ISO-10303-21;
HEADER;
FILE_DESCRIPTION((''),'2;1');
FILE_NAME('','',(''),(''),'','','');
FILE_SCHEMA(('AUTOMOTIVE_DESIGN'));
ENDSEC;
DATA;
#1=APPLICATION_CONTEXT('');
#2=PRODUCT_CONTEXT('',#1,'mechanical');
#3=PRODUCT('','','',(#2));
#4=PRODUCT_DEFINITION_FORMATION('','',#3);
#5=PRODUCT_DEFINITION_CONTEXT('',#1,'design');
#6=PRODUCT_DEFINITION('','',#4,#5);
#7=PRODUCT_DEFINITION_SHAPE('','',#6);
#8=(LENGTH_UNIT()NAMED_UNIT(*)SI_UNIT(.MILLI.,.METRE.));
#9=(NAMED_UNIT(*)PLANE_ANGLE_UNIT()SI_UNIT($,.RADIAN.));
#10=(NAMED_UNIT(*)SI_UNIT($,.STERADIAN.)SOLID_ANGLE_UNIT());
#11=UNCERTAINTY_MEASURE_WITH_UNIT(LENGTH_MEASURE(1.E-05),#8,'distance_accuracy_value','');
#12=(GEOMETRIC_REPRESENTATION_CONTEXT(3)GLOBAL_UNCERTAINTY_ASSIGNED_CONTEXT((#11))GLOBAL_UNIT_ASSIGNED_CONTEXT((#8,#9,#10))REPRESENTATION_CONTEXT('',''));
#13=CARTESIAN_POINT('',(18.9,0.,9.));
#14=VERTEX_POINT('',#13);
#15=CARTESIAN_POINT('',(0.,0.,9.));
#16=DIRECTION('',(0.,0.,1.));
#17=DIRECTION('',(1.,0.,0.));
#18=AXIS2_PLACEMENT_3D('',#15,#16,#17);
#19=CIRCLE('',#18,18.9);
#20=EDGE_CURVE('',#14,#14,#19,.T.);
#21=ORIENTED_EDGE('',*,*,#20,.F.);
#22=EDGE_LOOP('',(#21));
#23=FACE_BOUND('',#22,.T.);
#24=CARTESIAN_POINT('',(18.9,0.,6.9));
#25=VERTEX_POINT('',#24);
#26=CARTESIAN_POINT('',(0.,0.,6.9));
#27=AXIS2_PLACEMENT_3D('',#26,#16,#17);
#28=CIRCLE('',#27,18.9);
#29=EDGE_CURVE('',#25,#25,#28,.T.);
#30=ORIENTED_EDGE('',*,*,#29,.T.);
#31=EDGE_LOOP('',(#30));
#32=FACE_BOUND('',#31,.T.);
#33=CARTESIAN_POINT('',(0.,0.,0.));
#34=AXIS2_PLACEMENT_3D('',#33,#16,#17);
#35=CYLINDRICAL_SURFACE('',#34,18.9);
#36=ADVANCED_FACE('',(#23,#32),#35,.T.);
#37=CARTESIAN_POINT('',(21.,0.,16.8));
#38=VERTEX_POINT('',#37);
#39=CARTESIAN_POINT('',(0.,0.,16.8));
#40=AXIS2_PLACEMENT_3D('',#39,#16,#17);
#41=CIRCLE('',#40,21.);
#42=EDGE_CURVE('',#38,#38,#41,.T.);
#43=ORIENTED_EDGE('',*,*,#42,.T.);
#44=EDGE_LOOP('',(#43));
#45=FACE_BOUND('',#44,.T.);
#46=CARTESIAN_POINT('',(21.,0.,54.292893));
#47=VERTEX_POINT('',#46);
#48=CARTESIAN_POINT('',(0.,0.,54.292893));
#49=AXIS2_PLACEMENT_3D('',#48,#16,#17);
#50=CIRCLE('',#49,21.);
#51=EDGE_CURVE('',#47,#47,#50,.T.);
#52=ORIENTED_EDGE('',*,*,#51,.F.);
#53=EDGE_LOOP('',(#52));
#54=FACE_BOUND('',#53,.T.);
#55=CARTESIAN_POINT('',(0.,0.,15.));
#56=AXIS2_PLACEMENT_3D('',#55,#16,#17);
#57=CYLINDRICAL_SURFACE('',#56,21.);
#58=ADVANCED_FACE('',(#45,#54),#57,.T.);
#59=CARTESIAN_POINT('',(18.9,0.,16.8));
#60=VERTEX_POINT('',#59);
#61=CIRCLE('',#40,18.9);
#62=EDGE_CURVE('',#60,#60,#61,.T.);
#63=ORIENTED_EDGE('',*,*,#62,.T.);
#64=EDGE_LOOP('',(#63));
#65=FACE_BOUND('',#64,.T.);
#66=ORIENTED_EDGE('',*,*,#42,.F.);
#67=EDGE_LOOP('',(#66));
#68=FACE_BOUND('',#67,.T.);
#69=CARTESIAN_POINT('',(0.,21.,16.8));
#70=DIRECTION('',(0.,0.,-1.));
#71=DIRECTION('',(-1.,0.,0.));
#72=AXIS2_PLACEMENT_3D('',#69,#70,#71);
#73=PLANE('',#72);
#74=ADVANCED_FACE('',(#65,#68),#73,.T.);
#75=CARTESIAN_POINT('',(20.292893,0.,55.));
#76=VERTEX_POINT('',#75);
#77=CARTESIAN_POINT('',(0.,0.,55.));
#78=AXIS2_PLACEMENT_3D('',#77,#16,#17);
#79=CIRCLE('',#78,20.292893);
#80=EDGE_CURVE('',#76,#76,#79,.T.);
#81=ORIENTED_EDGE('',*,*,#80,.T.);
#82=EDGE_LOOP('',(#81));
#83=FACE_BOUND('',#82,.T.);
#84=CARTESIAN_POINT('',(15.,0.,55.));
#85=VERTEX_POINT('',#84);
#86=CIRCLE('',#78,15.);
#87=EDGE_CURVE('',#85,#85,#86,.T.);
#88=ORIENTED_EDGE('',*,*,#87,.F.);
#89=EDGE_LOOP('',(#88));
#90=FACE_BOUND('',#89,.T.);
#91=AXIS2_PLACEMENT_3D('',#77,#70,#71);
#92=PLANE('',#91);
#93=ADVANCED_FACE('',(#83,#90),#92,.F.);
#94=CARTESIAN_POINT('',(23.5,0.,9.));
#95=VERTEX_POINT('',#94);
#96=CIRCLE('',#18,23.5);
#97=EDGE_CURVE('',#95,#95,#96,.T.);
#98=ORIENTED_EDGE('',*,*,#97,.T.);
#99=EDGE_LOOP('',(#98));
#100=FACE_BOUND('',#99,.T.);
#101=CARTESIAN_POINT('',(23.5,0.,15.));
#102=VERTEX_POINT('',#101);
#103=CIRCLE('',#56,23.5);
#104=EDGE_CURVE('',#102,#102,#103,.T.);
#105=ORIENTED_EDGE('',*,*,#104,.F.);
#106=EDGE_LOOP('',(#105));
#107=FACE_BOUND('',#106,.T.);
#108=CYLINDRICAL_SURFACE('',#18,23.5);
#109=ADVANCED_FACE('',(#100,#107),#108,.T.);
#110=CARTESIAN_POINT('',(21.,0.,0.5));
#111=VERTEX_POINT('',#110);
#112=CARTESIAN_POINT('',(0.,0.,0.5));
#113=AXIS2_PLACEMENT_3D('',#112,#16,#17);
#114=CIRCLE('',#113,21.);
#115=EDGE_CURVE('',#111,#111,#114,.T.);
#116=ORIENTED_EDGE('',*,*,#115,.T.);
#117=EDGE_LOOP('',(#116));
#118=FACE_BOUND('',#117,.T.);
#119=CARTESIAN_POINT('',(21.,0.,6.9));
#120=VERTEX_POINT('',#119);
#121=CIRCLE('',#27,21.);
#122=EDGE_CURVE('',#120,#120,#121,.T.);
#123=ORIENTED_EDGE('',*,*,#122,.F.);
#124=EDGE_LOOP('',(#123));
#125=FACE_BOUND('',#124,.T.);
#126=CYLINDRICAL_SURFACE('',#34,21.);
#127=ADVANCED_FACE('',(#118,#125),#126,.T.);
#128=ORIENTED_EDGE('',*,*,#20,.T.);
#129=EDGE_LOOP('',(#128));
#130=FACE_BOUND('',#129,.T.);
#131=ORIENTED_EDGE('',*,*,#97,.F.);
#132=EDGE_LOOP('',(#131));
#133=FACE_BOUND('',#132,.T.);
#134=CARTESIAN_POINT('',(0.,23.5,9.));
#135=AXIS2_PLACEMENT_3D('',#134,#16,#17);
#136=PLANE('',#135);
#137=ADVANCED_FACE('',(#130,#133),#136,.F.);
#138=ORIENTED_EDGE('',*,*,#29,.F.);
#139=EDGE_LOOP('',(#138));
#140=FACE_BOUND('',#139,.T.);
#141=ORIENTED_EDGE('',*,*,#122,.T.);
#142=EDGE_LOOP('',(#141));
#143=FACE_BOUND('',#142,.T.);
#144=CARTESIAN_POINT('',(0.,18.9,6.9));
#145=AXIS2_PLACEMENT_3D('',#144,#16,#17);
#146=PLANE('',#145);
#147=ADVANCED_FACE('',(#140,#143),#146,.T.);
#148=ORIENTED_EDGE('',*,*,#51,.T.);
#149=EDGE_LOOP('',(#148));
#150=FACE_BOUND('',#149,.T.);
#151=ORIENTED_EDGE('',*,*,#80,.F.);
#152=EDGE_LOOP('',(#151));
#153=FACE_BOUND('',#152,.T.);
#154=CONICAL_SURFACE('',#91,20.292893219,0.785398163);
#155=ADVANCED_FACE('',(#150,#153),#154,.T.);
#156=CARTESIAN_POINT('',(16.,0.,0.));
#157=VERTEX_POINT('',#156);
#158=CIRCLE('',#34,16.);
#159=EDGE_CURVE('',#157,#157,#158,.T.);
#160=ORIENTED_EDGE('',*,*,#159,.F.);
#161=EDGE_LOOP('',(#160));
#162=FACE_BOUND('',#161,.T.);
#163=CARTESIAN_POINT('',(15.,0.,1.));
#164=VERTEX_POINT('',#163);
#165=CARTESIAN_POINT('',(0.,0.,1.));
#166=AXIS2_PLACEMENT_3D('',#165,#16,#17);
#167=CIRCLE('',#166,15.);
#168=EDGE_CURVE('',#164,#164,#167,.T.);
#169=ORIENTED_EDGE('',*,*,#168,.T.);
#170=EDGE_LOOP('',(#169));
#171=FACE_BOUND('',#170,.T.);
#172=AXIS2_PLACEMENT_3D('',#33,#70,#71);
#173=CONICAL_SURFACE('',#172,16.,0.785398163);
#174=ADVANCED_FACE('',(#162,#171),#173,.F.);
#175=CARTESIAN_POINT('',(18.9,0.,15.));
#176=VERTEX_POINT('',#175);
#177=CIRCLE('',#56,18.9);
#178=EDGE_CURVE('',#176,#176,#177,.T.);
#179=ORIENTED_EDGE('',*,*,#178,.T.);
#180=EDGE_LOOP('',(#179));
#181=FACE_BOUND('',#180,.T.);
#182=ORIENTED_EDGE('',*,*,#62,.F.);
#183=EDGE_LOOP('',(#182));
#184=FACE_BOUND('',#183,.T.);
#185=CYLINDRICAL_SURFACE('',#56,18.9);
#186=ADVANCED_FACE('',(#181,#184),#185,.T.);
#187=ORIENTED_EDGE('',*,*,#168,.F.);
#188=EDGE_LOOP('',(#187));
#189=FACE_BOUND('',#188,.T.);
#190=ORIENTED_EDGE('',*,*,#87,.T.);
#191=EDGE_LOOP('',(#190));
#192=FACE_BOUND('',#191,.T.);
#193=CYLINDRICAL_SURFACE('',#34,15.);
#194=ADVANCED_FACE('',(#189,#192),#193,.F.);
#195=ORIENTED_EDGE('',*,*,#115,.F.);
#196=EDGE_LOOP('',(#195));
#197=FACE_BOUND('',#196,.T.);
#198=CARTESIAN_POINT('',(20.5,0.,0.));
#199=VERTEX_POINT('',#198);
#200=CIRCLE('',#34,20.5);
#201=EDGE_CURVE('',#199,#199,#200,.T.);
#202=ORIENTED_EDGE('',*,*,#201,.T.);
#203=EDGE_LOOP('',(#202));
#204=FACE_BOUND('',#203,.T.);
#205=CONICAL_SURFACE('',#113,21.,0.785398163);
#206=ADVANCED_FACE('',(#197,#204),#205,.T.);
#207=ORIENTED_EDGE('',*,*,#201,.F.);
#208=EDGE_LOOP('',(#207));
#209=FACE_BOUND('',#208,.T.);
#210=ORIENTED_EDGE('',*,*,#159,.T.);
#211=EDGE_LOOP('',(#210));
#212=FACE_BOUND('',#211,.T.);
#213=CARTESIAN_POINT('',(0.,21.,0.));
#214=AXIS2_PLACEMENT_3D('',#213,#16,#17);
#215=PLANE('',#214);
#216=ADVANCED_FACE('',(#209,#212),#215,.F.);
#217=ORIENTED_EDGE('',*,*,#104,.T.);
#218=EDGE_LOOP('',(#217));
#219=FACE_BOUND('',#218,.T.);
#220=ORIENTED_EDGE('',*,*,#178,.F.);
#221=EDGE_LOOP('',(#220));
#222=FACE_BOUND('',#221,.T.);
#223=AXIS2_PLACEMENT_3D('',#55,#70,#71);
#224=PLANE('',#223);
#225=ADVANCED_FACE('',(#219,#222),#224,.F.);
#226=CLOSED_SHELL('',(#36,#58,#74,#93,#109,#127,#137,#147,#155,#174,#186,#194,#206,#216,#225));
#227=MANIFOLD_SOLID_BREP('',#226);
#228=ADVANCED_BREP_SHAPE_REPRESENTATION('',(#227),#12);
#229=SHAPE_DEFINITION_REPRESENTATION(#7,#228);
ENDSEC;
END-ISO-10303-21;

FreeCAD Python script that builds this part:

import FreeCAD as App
import Part
import Sketcher
from FreeCAD import Vector
Q = App.Units.Quantity

doc = App.newDocument("Part")
body = doc.addObject("PartDesign::Body", "Body")

# Sketch on YZ plane
sketch1 = doc.addObject("Sketcher::SketchObject", "Sketch")
body.addObject(sketch1)
sketch1.AttachmentSupport = (doc.YZ_Plane, [""])
sketch1.MapMode = "FlatFace"
sketch1.addGeometry([
    Part.LineSegment(Vector(24, 15, 0), Vector(0, 15, 0)),
    Part.LineSegment(Vector(0, 15, 0), Vector(0, 9, 0)),
    Part.LineSegment(Vector(0, 9, 0), Vector(24, 9, 0)),
    Part.LineSegment(Vector(24, 9, 0), Vector(24, 15, 0)),
], False)
sketch1.addConstraint([
    Sketcher.Constraint("Coincident", 0, 2, 1, 1),
    Sketcher.Constraint("Coincident", 1, 2, 2, 1),
    Sketcher.Constraint("Coincident", 2, 2, 3, 1),
    Sketcher.Constraint("Coincident", 3, 2, 0, 1),
    Sketcher.Constraint("Horizontal", 0),
    Sketcher.Constraint("Vertical", 1),
    Sketcher.Constraint("Horizontal", 2),
    Sketcher.Constraint("Vertical", 3),
    Sketcher.Constraint("PointOnObject", 0, 2, -2),
    Sketcher.Constraint("DistanceY", 1, 2, 1, 1, Q("6 mm")),
    Sketcher.Constraint("DistanceX", 0, 2, 0, 1, Q("23.5 mm")),
    Sketcher.Constraint("DistanceY", -1, 1, 0, 2, Q("15 mm")),
])
revolution = doc.addObject("PartDesign::Revolution", "Revolution")
body.addObject(revolution)
revolution.Profile = sketch1
revolution.ReferenceAxis = (sketch1, ["V_Axis"])
revolution.Angle = 360

# Sketch on YZ plane
sketch2 = doc.addObject("Sketcher::SketchObject", "Sketch001")
body.addObject(sketch2)
sketch2.AttachmentSupport = (doc.YZ_Plane, [""])
sketch2.MapMode = "FlatFace"
sketch2.addGeometry([
    Part.LineSegment(Vector(21, 55, 0), Vector(0, 55, 0)),
    Part.LineSegment(Vector(0, 55, 0), Vector(0, 15, 0)),
    Part.LineSegment(Vector(0, 15, 0), Vector(21, 15, 0)),
    Part.LineSegment(Vector(21, 15, 0), Vector(21, 55, 0)),
], False)
sketch2.addConstraint([
    Sketcher.Constraint("Coincident", 0, 2, 1, 1),
    Sketcher.Constraint("Coincident", 1, 2, 2, 1),
    Sketcher.Constraint("Coincident", 2, 2, 3, 1),
    Sketcher.Constraint("Coincident", 3, 2, 0, 1),
    Sketcher.Constraint("Horizontal", 0),
    Sketcher.Constraint("Vertical", 1),
    Sketcher.Constraint("Horizontal", 2),
    Sketcher.Constraint("Vertical", 3),
    Sketcher.Constraint("PointOnObject", 0, 2, -2),
    Sketcher.Constraint("DistanceX", 0, 2, 0, 1, Q("21 mm")),
    Sketcher.Constraint("DistanceY", 1, 2, 1, 1, Q("40 mm")),
    Sketcher.Constraint("DistanceY", -1, 1, 0, 2, Q("55 mm")),
])
revolution2 = doc.addObject("PartDesign::Revolution", "Revolution001")
body.addObject(revolution2)
revolution2.Profile = sketch2
revolution2.ReferenceAxis = (sketch2, ["V_Axis"])
revolution2.Angle = 360

# Sketch on YZ plane
sketch3 = doc.addObject("Sketcher::SketchObject", "Sketch002")
body.addObject(sketch3)
sketch3.AttachmentSupport = (doc.YZ_Plane, [""])
sketch3.MapMode = "FlatFace"
sketch3.addGeometry([
    Part.LineSegment(Vector(20.3, 55, 0), Vector(21, 54.3, 0)),
    Part.LineSegment(Vector(21, 54.3, 0), Vector(21, 55, 0)),
    Part.LineSegment(Vector(21, 55, 0), Vector(20.3, 55, 0)),
], False)
sketch3.addConstraint([
    Sketcher.Constraint("Coincident", 0, 2, 1, 1),
    Sketcher.Constraint("Coincident", 1, 2, 2, 1),
    Sketcher.Constraint("Coincident", 2, 2, 0, 1),
    Sketcher.Constraint("Vertical", 1),
    Sketcher.Constraint("Horizontal", 2),
    Sketcher.Constraint("Equal", 2, 1),
    Sketcher.Constraint("Distance", 0, Q("1 mm")),
    Sketcher.Constraint("DistanceX", -1, 1, 0, 2, Q("21 mm")),
    Sketcher.Constraint("DistanceY", -1, 1, 1, 2, Q("55 mm")),
])
groove = doc.addObject("PartDesign::Groove", "Groove")
body.addObject(groove)
groove.Profile = sketch3
groove.ReferenceAxis = (sketch3, ["V_Axis"])
groove.Angle = 360

# Sketch on YZ plane
sketch4 = doc.addObject("Sketcher::SketchObject", "Sketch003")
body.addObject(sketch4)
sketch4.AttachmentSupport = (doc.YZ_Plane, [""])
sketch4.MapMode = "FlatFace"
sketch4.addGeometry([
    Part.LineSegment(Vector(21, 16.8, 0), Vector(18.9, 16.8, 0)),
    Part.LineSegment(Vector(18.9, 16.8, 0), Vector(18.9, 15, 0)),
    Part.LineSegment(Vector(18.9, 15, 0), Vector(21, 15, 0)),
    Part.LineSegment(Vector(21, 15, 0), Vector(21, 16.8, 0)),
], False)
sketch4.addConstraint([
    Sketcher.Constraint("Coincident", 0, 2, 1, 1),
    Sketcher.Constraint("Coincident", 1, 2, 2, 1),
    Sketcher.Constraint("Coincident", 2, 2, 3, 1),
    Sketcher.Constraint("Coincident", 3, 2, 0, 1),
    Sketcher.Constraint("Horizontal", 0),
    Sketcher.Constraint("Vertical", 1),
    Sketcher.Constraint("Horizontal", 2),
    Sketcher.Constraint("Vertical", 3),
    Sketcher.Constraint("DistanceX", 0, 2, 0, 1, Q("2.1 mm")),
    Sketcher.Constraint("DistanceY", 1, 2, 1, 1, Q("1.8 mm")),
    Sketcher.Constraint("DistanceY", -1, 1, 1, 2, Q("15 mm")),
    Sketcher.Constraint("DistanceX", -1, 1, 2, 2, Q("21 mm")),
])
groove2 = doc.addObject("PartDesign::Groove", "Groove001")
body.addObject(groove2)
groove2.Profile = sketch4
groove2.ReferenceAxis = (sketch4, ["V_Axis"])
groove2.Angle = 360

# Sketch on YZ plane
sketch5 = doc.addObject("Sketcher::SketchObject", "Sketch004")
body.addObject(sketch5)
sketch5.AttachmentSupport = (doc.YZ_Plane, [""])
sketch5.MapMode = "FlatFace"
sketch5.addGeometry([
    Part.LineSegment(Vector(21, 9, 0), Vector(0, 9, 0)),
    Part.LineSegment(Vector(0, 9, 0), Vector(0, 0, 0)),
    Part.LineSegment(Vector(0, 0, 0), Vector(21, 0, 0)),
    Part.LineSegment(Vector(21, 0, 0), Vector(21, 9, 0)),
], False)
sketch5.addConstraint([
    Sketcher.Constraint("Coincident", 0, 2, 1, 1),
    Sketcher.Constraint("Coincident", 1, 2, 2, 1),
    Sketcher.Constraint("Coincident", 2, 2, 3, 1),
    Sketcher.Constraint("Coincident", 3, 2, 0, 1),
    Sketcher.Constraint("Horizontal", 0),
    Sketcher.Constraint("Vertical", 1),
    Sketcher.Constraint("Horizontal", 2),
    Sketcher.Constraint("Vertical", 3),
    Sketcher.Constraint("Coincident", 1, 2, -1, 1),
    Sketcher.Constraint("DistanceX", 0, 2, 0, 1, Q("21 mm")),
    Sketcher.Constraint("DistanceY", 1, 2, 1, 1, Q("9 mm")),
])
revolution3 = doc.addObject("PartDesign::Revolution", "Revolution002")
body.addObject(revolution3)
revolution3.Profile = sketch5
revolution3.ReferenceAxis = (sketch5, ["V_Axis"])
revolution3.Angle = 360

# Sketch on YZ plane
sketch6 = doc.addObject("Sketcher::SketchObject", "Sketch005")
body.addObject(sketch6)
sketch6.AttachmentSupport = (doc.YZ_Plane, [""])
sketch6.MapMode = "FlatFace"
sketch6.addGeometry([
    Part.LineSegment(Vector(15, 55, 0), Vector(0, 55, 0)),  # 0
    Part.LineSegment(Vector(0, 55, 0), Vector(0, 0, 0)),  # 1
    Part.LineSegment(Vector(0, 0, 0), Vector(16, 0, 0)),  # 2
    Part.LineSegment(Vector(16, 0, 0), Vector(15, 1, 0)),  # 3
    Part.LineSegment(Vector(15, 1, 0), Vector(15, 55, 0)),  # 4
], False)
sketch6.addConstraint([
    Sketcher.Constraint("Coincident", 0, 2, 1, 1),
    Sketcher.Constraint("Coincident", 1, 2, 2, 1),
    Sketcher.Constraint("Coincident", 2, 2, 3, 1),
    Sketcher.Constraint("Coincident", 3, 2, 4, 1),
    Sketcher.Constraint("Coincident", 4, 2, 0, 1),
    Sketcher.Constraint("Horizontal", 0),
    Sketcher.Constraint("Vertical", 1),
    Sketcher.Constraint("Horizontal", 2),
    Sketcher.Constraint("Vertical", 4),
    Sketcher.Constraint("Coincident", 1, 2, -1, 1),
    Sketcher.Constraint("DistanceX", 0, 2, 0, 1, Q("15 mm")),
    Sketcher.Constraint("DistanceX", 2, 1, 2, 2, Q("16 mm")),
    Sketcher.Constraint("DistanceY", 1, 2, 1, 1, Q("55 mm")),
    Sketcher.Constraint("DistanceY", 4, 1, 4, 2, Q("54 mm")),
])
groove3 = doc.addObject("PartDesign::Groove", "Groove002")
body.addObject(groove3)
groove3.Profile = sketch6
groove3.ReferenceAxis = (sketch6, ["V_Axis"])
groove3.Angle = 360

# Sketch on YZ plane
sketch7 = doc.addObject("Sketcher::SketchObject", "Sketch006")
body.addObject(sketch7)
sketch7.AttachmentSupport = (doc.YZ_Plane, [""])
sketch7.MapMode = "FlatFace"
sketch7.addGeometry([
    Part.LineSegment(Vector(21, 0.5, 0), Vector(20.5, 0, 0)),
    Part.LineSegment(Vector(20.5, 0, 0), Vector(21, 0, 0)),
    Part.LineSegment(Vector(21, 0, 0), Vector(21, 0.5, 0)),
], False)
sketch7.addConstraint([
    Sketcher.Constraint("Coincident", 0, 2, 1, 1),
    Sketcher.Constraint("Coincident", 1, 2, 2, 1),
    Sketcher.Constraint("Coincident", 2, 2, 0, 1),
    Sketcher.Constraint("Horizontal", 1),
    Sketcher.Constraint("Vertical", 2),
    Sketcher.Constraint("PointOnObject", 0, 2, -1),
    Sketcher.Constraint("Equal", 1, 2),
    Sketcher.Constraint("DistanceX", 1, 1, 1, 2, Q("0.5 mm")),
    Sketcher.Constraint("DistanceX", -1, 1, 1, 2, Q("21 mm")),
])
groove4 = doc.addObject("PartDesign::Groove", "Groove003")
body.addObject(groove4)
groove4.Profile = sketch7
groove4.ReferenceAxis = (sketch7, ["V_Axis"])
groove4.Angle = 360

# Sketch on YZ plane
sketch8 = doc.addObject("Sketcher::SketchObject", "Sketch007")
body.addObject(sketch8)
sketch8.AttachmentSupport = (doc.YZ_Plane, [""])
sketch8.MapMode = "FlatFace"
sketch8.addGeometry([
    Part.LineSegment(Vector(21, 9, 0), Vector(18.9, 9, 0)),
    Part.LineSegment(Vector(18.9, 9, 0), Vector(18.9, 6.9, 0)),
    Part.LineSegment(Vector(18.9, 6.9, 0), Vector(21, 6.9, 0)),
    Part.LineSegment(Vector(21, 6.9, 0), Vector(21, 9, 0)),
], False)
sketch8.addConstraint([
    Sketcher.Constraint("Coincident", 0, 2, 1, 1),
    Sketcher.Constraint("Coincident", 1, 2, 2, 1),
    Sketcher.Constraint("Coincident", 2, 2, 3, 1),
    Sketcher.Constraint("Coincident", 3, 2, 0, 1),
    Sketcher.Constraint("Horizontal", 0),
    Sketcher.Constraint("Vertical", 1),
    Sketcher.Constraint("Horizontal", 2),
    Sketcher.Constraint("Vertical", 3),
    Sketcher.Constraint("Equal", 2, 1),
    Sketcher.Constraint("DistanceX", 0, 2, 0, 1, Q("2.1 mm")),
    Sketcher.Constraint("DistanceY", -1, 1, 0, 2, Q("9 mm")),
    Sketcher.Constraint("DistanceX", -1, 1, 2, 2, Q("21 mm")),
])
groove5 = doc.addObject("PartDesign::Groove", "Groove004")
body.addObject(groove5)
groove5.Profile = sketch8
groove5.ReferenceAxis = (sketch8, ["V_Axis"])
groove5.Angle = 360

doc.recompute()
